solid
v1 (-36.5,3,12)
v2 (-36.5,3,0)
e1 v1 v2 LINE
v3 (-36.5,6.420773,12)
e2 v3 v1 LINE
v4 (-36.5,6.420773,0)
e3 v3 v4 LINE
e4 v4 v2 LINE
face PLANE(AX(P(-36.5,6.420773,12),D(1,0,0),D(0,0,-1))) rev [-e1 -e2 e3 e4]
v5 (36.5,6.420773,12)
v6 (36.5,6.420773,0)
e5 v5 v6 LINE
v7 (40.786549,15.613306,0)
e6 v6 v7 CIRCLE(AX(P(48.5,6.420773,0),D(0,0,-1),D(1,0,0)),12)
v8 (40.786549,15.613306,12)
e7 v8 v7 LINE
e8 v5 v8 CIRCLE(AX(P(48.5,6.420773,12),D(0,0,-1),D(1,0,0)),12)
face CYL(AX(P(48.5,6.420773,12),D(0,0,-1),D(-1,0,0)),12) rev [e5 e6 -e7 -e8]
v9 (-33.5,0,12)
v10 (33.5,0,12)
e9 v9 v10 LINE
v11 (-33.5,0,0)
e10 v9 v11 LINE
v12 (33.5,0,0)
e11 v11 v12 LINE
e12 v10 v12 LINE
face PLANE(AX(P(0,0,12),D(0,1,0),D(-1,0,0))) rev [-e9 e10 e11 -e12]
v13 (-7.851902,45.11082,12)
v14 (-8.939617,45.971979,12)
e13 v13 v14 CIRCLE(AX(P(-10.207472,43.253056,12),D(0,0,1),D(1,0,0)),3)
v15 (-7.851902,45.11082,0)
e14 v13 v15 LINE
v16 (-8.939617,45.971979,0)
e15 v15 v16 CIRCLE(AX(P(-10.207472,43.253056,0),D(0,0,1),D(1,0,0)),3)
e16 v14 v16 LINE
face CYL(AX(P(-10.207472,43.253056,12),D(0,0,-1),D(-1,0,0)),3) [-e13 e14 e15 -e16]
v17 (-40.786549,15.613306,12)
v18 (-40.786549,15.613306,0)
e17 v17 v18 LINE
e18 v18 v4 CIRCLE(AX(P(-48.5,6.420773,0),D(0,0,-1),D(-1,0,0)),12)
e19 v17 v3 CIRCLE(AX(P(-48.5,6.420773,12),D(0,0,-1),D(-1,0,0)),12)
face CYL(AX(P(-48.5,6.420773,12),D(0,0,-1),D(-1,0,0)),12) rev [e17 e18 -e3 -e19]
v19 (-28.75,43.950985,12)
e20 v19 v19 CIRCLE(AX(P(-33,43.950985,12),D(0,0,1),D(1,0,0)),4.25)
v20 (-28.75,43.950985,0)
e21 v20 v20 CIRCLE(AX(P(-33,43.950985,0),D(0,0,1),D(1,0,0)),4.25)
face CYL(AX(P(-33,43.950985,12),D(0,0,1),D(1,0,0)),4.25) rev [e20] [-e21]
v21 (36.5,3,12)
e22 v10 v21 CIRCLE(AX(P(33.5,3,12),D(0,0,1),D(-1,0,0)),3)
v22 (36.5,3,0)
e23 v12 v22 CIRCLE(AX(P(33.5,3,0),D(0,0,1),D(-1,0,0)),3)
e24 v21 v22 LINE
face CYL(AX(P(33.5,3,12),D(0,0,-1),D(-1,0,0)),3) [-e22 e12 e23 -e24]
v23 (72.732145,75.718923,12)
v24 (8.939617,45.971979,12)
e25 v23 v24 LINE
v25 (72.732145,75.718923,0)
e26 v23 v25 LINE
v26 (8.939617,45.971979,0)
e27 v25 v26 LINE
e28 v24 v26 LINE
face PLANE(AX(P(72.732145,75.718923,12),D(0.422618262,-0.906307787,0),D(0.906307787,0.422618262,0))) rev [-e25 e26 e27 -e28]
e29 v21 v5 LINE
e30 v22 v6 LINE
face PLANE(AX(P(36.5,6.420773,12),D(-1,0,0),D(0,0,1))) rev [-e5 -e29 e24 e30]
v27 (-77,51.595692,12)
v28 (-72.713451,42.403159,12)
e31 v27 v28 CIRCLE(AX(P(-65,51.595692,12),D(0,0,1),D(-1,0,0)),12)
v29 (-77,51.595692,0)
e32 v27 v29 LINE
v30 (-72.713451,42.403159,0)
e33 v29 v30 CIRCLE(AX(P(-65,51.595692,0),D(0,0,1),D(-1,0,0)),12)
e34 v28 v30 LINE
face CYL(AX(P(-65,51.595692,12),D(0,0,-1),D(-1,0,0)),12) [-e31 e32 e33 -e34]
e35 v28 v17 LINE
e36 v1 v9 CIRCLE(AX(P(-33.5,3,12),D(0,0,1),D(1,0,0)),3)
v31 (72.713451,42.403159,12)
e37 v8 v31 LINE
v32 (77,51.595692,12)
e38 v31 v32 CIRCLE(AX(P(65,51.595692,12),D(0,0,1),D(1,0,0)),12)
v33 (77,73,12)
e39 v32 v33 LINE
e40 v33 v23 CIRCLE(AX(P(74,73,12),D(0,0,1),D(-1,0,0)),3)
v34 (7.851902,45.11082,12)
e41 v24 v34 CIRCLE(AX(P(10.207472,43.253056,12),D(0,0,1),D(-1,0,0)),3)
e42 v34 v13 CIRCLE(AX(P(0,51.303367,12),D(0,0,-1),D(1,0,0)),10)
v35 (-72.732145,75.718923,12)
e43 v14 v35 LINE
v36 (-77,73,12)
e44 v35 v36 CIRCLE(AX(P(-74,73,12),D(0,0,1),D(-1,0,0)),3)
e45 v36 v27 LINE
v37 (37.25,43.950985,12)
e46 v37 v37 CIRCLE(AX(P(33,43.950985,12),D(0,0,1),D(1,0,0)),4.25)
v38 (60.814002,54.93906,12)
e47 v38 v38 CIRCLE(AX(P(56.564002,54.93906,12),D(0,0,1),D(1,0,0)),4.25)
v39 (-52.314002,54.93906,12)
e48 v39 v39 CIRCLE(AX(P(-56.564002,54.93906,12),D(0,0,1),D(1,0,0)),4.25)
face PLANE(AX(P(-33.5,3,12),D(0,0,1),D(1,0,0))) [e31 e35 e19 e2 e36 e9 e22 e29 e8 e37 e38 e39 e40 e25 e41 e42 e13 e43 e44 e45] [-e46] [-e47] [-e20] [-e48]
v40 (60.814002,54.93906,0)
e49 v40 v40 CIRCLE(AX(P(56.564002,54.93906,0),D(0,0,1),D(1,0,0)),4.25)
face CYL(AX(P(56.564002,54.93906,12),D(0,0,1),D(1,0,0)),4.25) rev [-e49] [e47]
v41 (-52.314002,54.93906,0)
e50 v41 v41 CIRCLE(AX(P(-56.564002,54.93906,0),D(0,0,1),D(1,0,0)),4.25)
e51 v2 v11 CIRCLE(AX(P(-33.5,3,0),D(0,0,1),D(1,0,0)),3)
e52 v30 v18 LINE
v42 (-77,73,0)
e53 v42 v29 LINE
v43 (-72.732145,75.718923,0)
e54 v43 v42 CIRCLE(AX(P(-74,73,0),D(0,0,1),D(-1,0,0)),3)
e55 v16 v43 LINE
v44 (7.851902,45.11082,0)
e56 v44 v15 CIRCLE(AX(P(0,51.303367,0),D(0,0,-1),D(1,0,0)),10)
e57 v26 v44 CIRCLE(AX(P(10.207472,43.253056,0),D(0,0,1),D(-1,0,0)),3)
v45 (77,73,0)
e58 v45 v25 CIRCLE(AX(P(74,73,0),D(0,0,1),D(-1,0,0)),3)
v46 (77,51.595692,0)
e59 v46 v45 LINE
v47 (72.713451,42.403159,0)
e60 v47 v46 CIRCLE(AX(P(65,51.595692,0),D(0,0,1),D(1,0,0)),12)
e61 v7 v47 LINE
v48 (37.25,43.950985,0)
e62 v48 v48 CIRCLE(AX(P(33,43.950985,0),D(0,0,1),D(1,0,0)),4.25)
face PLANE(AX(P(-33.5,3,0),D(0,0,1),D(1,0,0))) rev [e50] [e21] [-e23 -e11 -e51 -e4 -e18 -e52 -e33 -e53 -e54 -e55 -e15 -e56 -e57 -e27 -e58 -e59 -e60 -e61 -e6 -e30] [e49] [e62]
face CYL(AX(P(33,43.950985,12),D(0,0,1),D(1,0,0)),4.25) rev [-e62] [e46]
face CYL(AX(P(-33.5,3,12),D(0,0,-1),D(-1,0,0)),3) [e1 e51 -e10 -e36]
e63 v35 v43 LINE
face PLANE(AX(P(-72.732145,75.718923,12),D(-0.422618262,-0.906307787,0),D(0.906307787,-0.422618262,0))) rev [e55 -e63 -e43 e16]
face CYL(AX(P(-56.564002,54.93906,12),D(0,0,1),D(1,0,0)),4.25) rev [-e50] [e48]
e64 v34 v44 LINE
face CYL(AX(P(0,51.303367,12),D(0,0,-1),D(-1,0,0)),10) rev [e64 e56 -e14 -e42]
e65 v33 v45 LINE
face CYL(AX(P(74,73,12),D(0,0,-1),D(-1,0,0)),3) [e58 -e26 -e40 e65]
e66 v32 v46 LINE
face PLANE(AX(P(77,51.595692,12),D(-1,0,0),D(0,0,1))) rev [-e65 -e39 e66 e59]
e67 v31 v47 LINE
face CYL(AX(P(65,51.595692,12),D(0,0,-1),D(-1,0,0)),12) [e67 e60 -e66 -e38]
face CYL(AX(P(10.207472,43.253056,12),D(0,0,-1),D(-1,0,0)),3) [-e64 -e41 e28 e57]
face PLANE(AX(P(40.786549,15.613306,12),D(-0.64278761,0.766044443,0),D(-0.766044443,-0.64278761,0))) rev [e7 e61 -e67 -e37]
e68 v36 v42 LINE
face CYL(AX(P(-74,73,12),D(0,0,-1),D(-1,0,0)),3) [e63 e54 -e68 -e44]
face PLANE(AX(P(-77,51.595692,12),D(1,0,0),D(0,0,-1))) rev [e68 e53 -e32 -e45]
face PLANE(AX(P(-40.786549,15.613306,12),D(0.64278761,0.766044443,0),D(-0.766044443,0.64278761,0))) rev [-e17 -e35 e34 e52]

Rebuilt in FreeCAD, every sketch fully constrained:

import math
import FreeCAD as App
import Part
import Sketcher

V = App.Vector
Q = App.Units.Quantity

doc = App.newDocument("Part")
body = doc.addObject("PartDesign::Body", "Body")

# Sketch on XY plane
sketch1 = body.newObject("Sketcher::SketchObject", "Sketch")
sketch1.AttachmentSupport = (doc.getObject("XY_Plane"), [""])
sketch1.MapMode = "FlatFace"
sketch1.addGeometry([
    Part.LineSegment(V(36.5, 3, 0), V(36.5, 6.420773, 0)),  # 0
    Part.ArcOfCircle(Part.Circle(V(48.5, 6.420773, 0), V(0, 0, 1), 12), math.radians(130), math.radians(180)),  # 1
    Part.LineSegment(V(40.786549, 15.613306, 0), V(72.713451, 42.403159, 0)),  # 2
    Part.ArcOfCircle(Part.Circle(V(65, 51.595692, 0), V(0, 0, 1), 12), math.radians(-50), math.radians(0)),  # 3
    Part.LineSegment(V(77, 51.595692, 0), V(77, 73, 0)),  # 4
    Part.ArcOfCircle(Part.Circle(V(74, 73, 0), V(0, 0, 1), 3), math.radians(0), math.radians(115)),  # 5
    Part.LineSegment(V(72.732145, 75.718923, 0), V(8.939617, 45.971979, 0)),  # 6
    Part.ArcOfCircle(Part.Circle(V(10.207472, 43.253056, 0), V(0, 0, 1), 3), math.radians(115), math.radians(141.73827)),  # 7
    Part.ArcOfCircle(Part.Circle(V(0, 51.303367, 0), V(0, 0, 1), 10), math.radians(-141.73827), math.radians(-38.26173)),  # 8
    Part.ArcOfCircle(Part.Circle(V(-10.207472, 43.253056, 0), V(0, 0, 1), 3), math.radians(38.26173), math.radians(65)),  # 9
    Part.LineSegment(V(-8.939617, 45.971979, 0), V(-72.732145, 75.718923, 0)),  # 10
    Part.ArcOfCircle(Part.Circle(V(-74, 73, 0), V(0, 0, 1), 3), math.radians(65), math.radians(180)),  # 11
    Part.LineSegment(V(-77, 73, 0), V(-77, 51.595692, 0)),  # 12
    Part.ArcOfCircle(Part.Circle(V(-65, 51.595692, 0), V(0, 0, 1), 12), math.radians(-180), math.radians(-130)),  # 13
    Part.LineSegment(V(-72.713451, 42.403159, 0), V(-40.786549, 15.613306, 0)),  # 14
    Part.ArcOfCircle(Part.Circle(V(-48.5, 6.420773, 0), V(0, 0, 1), 12), math.radians(0), math.radians(50)),  # 15
    Part.LineSegment(V(-36.5, 6.420773, 0), V(-36.5, 3, 0)),  # 16
    Part.ArcOfCircle(Part.Circle(V(-33.5, 3, 0), V(0, 0, 1), 3), math.radians(180), math.radians(270)),  # 17
    Part.LineSegment(V(-33.5, 0, 0), V(33.5, 0, 0)),  # 18
    Part.ArcOfCircle(Part.Circle(V(33.5, 3, 0), V(0, 0, 1), 3), math.radians(-90), math.radians(0)),  # 19
], False)
sketch1.addConstraint([
    Sketcher.Constraint("Tangent", 0, 2, 1, 2),
    Sketcher.Constraint("Tangent", 1, 1, 2, 1),
    Sketcher.Constraint("Tangent", 2, 2, 3, 1),
    Sketcher.Constraint("Tangent", 3, 2, 4, 1),
    Sketcher.Constraint("Tangent", 4, 2, 5, 1),
    Sketcher.Constraint("Tangent", 5, 2, 6, 1),
    Sketcher.Constraint("Tangent", 6, 2, 7, 1),
    Sketcher.Constraint("Tangent", 7, 2, 8, 2),
    Sketcher.Constraint("Tangent", 8, 1, 9, 1),
    Sketcher.Constraint("Tangent", 9, 2, 10, 1),
    Sketcher.Constraint("Tangent", 10, 2, 11, 1),
    Sketcher.Constraint("Tangent", 11, 2, 12, 1),
    Sketcher.Constraint("Tangent", 12, 2, 13, 1),
    Sketcher.Constraint("Tangent", 13, 2, 14, 1),
    Sketcher.Constraint("Tangent", 14, 2, 15, 2),
    Sketcher.Constraint("Tangent", 15, 1, 16, 1),
    Sketcher.Constraint("Tangent", 16, 2, 17, 1),
    Sketcher.Constraint("Tangent", 17, 2, 18, 1),
    Sketcher.Constraint("Tangent", 18, 2, 19, 1),
    Sketcher.Constraint("Tangent", 19, 2, 0, 1),
    Sketcher.Constraint("Vertical", 0),
    Sketcher.Constraint("Vertical", 4),
    Sketcher.Constraint("Vertical", 12),
    Sketcher.Constraint("Vertical", 16),
    Sketcher.Constraint("Horizontal", 18),
    Sketcher.Constraint("Equal", 1, 3),
    Sketcher.Constraint("Equal", 5, 7),
    Sketcher.Constraint("Equal", 7, 9),
    Sketcher.Constraint("Equal", 9, 11),
    Sketcher.Constraint("Equal", 3, 13),
    Sketcher.Constraint("Equal", 13, 15),
    Sketcher.Constraint("Equal", 11, 17),
    Sketcher.Constraint("Equal", 17, 19),
    Sketcher.Constraint("Symmetric", 17, 2, 18, 2, -1, 1),
    Sketcher.Constraint("Symmetric", 7, 3, 9, 3, -2),
    Sketcher.Constraint("Symmetric", 5, 3, 11, 3, -2),
    Sketcher.Constraint("Symmetric", 2, 2, 13, 2, -2),
    Sketcher.Constraint("Radius", 1, 12.0),
    Sketcher.Constraint("Radius", 5, 3.0),
    Sketcher.Constraint("Radius", 8, 10.0),
    Sketcher.Constraint("DistanceX", 18, 1, 18, 2, 67.0),
    Sketcher.Constraint("Angle", 2, Q("40 deg")),
    Sketcher.Constraint("Angle", 6, Q("-155 deg")),
    Sketcher.Constraint("DistanceX", -1, 1, 3, 3, 65.0),
    Sketcher.Constraint("DistanceY", -1, 1, 5, 3, 73.0),
    Sketcher.Constraint("DistanceY", 4, 1, 4, 2, 21.404308),
    Sketcher.Constraint("DistanceX", -1, 1, 7, 2, 7.851902),
])
pad1 = body.newObject("PartDesign::Pad", "Pad")
pad1.Profile = sketch1
pad1.Length = 12

# Sketch on XY plane
sketch2 = body.newObject("Sketcher::SketchObject", "Sketch001")
sketch2.AttachmentSupport = (doc.getObject("XY_Plane"), [""])
sketch2.MapMode = "FlatFace"
sketch2.AttachmentOffset = App.Placement(V(0, 0, 12), App.Rotation())
sketch2.addGeometry([
    Part.Circle(V(-33, 43.950985, 0), V(0, 0, 1), 4.25),
    Part.Circle(V(-56.564002, 54.93906, 0), V(0, 0, 1), 4.25),
    Part.Circle(V(56.564002, 54.93906, 0), V(0, 0, 1), 4.25),
    Part.Circle(V(33, 43.950985, 0), V(0, 0, 1), 4.25),
], False)
sketch2.addConstraint([
    Sketcher.Constraint("Equal", 0, 1),
    Sketcher.Constraint("Equal", 1, 2),
    Sketcher.Constraint("Equal", 2, 3),
    Sketcher.Constraint("Symmetric", 1, 3, 2, 3, -2),
    Sketcher.Constraint("Symmetric", 0, 3, 3, 3, -2),
    Sketcher.Constraint("Diameter", 0, 8.5),
    Sketcher.Constraint("DistanceX", 0, 3, -1, 1, 33.0),
    Sketcher.Constraint("DistanceY", -1, 1, 1, 3, 54.93906),
    Sketcher.Constraint("DistanceY", -1, 1, 0, 3, 43.950985),
    Sketcher.Constraint("DistanceX", 1, 3, -1, 1, 56.564002),
])
doc.recompute()
hole = body.newObject("PartDesign::Hole", "Hole")
hole.Profile = sketch2
hole.ThreadType = "None"
hole.Diameter = 8.5
hole.DepthType = "Dimension"
hole.Depth = 22
hole.DrillPoint = "Angled"
hole.DrillPointAngle = 118

doc.recompute()
